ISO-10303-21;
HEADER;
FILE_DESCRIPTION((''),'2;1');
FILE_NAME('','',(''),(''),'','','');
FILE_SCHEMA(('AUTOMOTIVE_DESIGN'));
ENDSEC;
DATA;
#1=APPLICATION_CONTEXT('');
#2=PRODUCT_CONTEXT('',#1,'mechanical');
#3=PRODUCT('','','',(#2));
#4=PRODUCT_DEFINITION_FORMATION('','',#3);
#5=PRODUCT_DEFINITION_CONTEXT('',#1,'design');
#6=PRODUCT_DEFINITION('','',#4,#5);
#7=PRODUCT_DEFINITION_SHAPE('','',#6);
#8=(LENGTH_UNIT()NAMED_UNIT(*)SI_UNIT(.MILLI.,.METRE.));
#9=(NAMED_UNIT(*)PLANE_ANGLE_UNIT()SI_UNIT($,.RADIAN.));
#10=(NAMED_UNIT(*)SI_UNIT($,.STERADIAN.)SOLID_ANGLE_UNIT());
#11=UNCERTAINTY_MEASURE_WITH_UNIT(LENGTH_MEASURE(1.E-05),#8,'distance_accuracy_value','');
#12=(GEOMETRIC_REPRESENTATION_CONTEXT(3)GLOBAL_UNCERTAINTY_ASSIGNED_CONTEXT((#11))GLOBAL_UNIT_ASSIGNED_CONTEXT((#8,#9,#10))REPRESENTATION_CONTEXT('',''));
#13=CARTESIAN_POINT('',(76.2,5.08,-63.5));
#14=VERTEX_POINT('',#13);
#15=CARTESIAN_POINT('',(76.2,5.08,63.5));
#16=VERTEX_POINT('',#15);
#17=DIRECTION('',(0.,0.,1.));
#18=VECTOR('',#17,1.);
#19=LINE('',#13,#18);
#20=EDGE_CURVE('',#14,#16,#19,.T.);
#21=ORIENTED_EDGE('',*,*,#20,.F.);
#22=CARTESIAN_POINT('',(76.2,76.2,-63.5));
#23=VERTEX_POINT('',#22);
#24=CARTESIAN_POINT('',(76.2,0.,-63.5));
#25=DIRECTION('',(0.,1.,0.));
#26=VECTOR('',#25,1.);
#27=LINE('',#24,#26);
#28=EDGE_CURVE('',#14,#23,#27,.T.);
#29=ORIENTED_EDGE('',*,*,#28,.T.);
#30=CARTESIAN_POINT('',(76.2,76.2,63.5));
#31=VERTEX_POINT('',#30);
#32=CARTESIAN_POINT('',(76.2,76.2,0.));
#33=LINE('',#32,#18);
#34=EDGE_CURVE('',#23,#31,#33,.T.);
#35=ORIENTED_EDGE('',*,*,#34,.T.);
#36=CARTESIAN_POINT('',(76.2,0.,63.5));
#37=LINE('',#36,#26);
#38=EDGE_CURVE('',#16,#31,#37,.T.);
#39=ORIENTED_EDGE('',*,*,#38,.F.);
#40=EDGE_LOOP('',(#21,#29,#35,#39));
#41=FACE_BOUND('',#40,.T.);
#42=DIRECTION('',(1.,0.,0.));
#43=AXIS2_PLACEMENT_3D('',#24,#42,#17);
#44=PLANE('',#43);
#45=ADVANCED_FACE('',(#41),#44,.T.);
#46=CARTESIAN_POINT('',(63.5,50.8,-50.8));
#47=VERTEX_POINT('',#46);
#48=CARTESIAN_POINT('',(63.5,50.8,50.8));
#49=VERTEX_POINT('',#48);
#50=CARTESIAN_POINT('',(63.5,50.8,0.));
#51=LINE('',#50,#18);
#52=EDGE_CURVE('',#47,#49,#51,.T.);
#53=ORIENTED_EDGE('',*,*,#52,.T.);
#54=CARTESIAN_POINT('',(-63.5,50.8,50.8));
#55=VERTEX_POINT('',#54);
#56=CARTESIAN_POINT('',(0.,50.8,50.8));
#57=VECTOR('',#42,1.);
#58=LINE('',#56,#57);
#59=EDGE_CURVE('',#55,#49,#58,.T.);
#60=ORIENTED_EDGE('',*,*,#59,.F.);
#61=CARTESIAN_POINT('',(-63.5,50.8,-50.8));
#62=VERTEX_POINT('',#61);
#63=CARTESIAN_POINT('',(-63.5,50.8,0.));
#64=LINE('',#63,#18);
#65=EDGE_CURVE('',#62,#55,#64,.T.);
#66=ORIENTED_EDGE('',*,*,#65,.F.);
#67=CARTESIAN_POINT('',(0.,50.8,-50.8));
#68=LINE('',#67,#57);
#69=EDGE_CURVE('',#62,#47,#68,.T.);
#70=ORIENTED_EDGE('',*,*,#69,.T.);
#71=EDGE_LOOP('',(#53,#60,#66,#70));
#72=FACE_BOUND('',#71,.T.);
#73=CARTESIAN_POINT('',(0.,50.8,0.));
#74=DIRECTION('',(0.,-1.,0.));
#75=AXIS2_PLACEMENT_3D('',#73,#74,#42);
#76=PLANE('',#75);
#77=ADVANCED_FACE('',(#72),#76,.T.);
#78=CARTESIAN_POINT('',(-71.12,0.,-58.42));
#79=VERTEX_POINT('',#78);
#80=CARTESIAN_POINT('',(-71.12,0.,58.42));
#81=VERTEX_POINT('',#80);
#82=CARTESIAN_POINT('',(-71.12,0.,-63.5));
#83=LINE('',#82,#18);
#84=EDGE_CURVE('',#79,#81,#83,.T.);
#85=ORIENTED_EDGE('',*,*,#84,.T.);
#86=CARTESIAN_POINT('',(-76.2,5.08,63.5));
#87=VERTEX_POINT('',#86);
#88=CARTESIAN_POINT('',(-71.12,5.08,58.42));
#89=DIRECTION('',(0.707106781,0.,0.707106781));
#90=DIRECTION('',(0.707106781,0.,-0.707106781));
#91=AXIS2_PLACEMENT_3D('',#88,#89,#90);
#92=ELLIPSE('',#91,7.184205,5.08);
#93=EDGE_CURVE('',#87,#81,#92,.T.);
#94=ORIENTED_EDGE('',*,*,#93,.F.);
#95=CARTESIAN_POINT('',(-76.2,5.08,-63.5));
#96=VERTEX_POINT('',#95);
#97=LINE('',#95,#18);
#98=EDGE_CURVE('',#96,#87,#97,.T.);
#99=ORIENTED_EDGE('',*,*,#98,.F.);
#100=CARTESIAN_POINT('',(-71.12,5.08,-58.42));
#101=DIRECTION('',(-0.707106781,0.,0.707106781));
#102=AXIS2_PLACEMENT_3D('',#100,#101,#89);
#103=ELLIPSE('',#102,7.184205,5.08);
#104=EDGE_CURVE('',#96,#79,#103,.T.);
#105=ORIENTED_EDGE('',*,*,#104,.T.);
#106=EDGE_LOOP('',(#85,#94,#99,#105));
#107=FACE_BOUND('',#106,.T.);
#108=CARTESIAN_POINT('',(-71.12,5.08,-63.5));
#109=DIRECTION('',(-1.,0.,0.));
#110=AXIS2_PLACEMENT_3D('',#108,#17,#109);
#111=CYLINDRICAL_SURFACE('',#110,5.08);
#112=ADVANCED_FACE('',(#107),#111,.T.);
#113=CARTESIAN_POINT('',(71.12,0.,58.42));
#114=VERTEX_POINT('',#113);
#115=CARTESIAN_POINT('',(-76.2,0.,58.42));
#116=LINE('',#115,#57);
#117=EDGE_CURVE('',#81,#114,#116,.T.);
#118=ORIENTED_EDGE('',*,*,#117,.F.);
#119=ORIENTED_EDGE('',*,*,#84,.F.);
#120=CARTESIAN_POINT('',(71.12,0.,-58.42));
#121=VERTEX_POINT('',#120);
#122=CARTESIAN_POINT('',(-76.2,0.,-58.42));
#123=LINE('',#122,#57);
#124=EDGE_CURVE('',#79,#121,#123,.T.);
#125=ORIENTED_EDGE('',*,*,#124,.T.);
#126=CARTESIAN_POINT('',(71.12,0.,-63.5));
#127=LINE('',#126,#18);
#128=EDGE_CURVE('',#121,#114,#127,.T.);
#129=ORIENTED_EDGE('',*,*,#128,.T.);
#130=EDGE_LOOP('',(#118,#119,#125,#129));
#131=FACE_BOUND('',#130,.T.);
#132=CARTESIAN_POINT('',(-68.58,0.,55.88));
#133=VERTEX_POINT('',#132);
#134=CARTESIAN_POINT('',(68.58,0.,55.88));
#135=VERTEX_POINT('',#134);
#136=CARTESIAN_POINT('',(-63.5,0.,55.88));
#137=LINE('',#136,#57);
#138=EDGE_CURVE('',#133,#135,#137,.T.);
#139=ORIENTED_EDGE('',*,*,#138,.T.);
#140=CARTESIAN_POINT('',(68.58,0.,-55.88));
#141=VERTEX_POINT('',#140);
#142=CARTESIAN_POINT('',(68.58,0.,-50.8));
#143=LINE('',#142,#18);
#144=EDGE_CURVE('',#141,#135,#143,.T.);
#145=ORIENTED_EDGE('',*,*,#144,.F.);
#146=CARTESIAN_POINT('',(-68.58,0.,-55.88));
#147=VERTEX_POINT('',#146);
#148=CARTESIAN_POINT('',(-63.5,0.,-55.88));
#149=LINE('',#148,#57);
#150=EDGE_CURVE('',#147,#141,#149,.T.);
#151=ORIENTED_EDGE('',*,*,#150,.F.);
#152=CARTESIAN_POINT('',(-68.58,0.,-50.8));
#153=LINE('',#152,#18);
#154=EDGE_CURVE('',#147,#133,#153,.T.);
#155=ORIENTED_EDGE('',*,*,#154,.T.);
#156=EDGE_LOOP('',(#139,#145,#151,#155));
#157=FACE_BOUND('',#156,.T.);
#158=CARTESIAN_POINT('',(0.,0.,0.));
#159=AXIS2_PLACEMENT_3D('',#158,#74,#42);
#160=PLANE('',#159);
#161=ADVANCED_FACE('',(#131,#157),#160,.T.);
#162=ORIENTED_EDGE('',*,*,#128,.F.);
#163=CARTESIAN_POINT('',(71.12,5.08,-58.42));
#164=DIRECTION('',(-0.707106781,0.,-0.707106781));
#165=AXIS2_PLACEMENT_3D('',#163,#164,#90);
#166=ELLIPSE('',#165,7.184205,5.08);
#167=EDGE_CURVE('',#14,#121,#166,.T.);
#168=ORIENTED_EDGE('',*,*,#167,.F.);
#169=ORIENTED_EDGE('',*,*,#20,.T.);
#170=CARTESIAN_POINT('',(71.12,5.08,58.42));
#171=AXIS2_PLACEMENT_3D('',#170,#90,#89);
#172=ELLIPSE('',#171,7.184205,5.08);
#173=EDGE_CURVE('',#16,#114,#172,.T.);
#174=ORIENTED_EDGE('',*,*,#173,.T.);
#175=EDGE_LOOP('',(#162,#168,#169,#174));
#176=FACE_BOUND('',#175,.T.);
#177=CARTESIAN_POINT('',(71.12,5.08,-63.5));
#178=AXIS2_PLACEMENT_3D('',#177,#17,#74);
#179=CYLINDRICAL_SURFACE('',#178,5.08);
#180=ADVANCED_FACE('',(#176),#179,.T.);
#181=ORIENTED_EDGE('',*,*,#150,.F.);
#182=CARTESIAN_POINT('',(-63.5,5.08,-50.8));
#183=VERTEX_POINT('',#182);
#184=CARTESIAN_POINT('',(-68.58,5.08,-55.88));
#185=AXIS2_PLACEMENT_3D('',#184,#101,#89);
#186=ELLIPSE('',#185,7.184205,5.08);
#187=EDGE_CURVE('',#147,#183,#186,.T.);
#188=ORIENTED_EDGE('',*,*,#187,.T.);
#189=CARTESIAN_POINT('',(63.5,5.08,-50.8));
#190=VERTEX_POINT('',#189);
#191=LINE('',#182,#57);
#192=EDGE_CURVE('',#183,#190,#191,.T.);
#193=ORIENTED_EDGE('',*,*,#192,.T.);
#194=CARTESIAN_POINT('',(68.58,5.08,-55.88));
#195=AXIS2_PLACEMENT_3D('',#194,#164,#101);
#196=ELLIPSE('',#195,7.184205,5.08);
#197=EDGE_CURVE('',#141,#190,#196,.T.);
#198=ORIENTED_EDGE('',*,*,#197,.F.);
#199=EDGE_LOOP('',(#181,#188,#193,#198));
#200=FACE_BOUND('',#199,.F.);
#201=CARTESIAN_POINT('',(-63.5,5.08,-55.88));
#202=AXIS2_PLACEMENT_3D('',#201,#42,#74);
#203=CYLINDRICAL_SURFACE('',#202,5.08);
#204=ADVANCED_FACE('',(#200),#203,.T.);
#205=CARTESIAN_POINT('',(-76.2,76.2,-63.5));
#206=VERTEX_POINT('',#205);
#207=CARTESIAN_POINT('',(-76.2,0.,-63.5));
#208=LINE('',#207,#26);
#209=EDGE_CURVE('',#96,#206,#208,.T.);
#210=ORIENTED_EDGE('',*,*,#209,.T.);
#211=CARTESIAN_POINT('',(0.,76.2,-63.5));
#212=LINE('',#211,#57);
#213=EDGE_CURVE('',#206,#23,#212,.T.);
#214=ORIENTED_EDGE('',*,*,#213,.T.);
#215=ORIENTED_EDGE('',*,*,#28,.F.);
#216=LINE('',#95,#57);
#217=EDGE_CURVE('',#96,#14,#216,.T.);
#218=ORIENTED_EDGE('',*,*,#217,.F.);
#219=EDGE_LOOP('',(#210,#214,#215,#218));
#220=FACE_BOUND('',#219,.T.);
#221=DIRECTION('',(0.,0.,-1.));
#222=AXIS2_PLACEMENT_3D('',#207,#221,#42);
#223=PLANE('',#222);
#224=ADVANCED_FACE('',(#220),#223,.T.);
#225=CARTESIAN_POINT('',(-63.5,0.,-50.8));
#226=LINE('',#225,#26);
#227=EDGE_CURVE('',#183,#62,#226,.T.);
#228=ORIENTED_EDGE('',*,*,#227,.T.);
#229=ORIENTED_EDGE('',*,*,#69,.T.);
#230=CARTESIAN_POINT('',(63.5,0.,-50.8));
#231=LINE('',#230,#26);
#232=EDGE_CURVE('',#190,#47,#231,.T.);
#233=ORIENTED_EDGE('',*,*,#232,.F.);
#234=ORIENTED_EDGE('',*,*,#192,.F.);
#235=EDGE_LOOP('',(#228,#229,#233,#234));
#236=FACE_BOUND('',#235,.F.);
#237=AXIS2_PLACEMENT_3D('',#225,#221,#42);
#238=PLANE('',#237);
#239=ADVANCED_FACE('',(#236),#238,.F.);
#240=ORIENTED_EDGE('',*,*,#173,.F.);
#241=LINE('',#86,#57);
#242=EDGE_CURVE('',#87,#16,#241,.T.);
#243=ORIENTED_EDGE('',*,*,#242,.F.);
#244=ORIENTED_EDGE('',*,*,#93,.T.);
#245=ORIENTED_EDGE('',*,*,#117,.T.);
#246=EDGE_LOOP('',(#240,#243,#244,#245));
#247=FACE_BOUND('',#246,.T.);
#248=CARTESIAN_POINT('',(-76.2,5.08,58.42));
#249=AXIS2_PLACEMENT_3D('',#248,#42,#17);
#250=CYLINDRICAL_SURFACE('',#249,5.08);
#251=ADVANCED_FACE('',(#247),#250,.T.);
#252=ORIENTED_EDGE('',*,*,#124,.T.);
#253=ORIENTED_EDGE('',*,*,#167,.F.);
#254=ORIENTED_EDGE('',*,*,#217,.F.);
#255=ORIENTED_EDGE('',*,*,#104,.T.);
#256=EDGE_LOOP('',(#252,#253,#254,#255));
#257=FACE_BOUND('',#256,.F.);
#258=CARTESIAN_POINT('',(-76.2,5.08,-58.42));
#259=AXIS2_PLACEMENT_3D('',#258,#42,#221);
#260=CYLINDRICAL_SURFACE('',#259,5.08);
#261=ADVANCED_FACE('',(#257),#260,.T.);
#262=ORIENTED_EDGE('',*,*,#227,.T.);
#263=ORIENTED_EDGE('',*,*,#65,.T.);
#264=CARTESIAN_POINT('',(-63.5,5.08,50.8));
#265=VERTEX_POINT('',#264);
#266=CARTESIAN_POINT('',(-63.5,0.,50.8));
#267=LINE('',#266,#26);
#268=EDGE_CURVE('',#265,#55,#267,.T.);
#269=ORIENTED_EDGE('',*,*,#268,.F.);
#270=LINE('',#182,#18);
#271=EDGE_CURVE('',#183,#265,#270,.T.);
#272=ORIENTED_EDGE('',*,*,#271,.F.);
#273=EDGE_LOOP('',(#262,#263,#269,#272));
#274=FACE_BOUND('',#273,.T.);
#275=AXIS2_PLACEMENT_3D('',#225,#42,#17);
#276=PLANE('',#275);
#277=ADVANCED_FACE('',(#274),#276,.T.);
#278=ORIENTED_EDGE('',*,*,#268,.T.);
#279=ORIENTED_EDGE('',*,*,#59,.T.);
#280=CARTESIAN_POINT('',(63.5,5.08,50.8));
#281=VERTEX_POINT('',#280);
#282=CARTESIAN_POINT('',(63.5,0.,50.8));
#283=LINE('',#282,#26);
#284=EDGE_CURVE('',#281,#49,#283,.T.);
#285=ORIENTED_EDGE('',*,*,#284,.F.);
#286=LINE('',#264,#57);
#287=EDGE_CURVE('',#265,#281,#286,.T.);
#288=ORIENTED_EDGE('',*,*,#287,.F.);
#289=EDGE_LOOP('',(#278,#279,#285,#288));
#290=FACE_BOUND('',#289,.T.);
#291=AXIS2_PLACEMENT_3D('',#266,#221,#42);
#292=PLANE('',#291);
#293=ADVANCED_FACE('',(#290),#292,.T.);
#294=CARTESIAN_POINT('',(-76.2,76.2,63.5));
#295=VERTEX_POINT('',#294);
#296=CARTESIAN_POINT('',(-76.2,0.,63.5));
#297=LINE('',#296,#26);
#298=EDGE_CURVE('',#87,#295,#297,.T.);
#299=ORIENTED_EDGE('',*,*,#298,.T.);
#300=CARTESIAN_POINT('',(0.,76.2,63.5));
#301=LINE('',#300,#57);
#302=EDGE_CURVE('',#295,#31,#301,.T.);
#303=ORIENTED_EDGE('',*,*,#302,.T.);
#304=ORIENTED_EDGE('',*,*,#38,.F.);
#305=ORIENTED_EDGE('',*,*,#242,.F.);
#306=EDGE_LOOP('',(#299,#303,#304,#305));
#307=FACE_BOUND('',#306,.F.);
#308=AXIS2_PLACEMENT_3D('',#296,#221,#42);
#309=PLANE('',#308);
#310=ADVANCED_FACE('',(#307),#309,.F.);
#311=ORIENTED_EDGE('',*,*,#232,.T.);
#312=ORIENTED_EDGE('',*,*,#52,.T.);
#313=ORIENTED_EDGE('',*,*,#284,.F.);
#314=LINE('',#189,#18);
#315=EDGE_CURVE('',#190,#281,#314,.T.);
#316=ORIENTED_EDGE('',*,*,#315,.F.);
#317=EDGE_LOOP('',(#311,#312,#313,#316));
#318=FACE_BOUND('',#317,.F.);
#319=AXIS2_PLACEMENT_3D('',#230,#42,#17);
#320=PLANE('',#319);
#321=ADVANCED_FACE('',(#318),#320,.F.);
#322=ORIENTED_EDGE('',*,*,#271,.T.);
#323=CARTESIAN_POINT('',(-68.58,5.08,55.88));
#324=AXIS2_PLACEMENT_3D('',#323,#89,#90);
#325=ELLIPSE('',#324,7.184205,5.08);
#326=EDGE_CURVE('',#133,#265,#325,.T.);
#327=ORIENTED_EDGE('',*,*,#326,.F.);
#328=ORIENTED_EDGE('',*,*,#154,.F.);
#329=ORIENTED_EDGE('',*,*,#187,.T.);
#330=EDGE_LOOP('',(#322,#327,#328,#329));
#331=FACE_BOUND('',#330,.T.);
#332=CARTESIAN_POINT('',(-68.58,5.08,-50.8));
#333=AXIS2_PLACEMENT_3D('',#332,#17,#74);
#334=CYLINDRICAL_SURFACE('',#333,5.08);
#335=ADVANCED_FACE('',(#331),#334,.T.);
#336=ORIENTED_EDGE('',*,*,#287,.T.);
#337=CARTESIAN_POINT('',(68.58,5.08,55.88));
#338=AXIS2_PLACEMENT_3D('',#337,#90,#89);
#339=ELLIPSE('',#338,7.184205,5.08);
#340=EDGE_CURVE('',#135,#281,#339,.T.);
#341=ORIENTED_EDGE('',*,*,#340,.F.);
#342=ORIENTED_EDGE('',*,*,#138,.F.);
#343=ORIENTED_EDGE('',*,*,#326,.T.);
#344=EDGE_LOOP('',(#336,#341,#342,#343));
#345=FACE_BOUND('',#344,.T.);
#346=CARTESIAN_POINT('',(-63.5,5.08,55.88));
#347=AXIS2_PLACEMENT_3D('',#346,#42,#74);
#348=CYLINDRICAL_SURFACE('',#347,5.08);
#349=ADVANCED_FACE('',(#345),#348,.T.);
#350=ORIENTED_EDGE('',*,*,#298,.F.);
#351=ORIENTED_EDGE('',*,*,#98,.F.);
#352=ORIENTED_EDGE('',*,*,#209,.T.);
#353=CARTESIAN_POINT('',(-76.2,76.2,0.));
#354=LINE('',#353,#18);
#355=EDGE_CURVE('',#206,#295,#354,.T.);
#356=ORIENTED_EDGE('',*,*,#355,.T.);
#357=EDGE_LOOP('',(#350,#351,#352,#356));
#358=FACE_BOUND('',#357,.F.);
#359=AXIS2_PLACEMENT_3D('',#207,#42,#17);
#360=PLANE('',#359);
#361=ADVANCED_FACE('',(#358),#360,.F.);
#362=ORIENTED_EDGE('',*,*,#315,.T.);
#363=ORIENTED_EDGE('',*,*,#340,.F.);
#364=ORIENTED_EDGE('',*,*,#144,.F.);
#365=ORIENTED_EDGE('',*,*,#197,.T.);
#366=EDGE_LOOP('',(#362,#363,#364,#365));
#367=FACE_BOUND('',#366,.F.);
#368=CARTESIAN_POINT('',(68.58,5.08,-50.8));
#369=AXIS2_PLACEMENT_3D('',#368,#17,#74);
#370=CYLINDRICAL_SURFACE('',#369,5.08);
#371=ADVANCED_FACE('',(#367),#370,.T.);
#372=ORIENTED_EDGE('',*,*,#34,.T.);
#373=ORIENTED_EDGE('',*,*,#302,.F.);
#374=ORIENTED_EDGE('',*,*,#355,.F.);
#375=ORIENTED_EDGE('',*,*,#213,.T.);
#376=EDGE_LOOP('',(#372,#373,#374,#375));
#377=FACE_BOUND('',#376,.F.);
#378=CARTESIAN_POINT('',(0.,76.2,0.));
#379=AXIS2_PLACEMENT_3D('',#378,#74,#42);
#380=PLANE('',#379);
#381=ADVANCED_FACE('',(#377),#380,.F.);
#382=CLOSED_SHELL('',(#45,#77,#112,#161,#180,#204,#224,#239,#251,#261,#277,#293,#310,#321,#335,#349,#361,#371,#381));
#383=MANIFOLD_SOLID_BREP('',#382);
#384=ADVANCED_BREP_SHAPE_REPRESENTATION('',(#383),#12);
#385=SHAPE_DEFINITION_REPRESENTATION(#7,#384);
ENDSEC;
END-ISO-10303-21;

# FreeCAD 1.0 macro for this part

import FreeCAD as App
import Part
import Sketcher
from FreeCAD import Vector
Q = App.Units.Quantity


def edges_at(feature, points):
    """Names of the edges that pass closest to the given points."""
    edges = feature.Shape.Edges
    near = lambda p: min(range(len(edges)), key=lambda i: edges[i].distToShape(Part.Vertex(*p))[0])
    return sorted({f"Edge{near(p) + 1}" for p in points})

doc = App.newDocument("Part")
body = doc.addObject("PartDesign::Body", "Body")

# Sketch on XZ plane
sketch1 = body.newObject("Sketcher::SketchObject", "Sketch")
sketch1.AttachmentSupport = (doc.getObject("XZ_Plane"), [""])
sketch1.MapMode = "FlatFace"
sketch1.addGeometry(Part.LineSegment(Vector(-76.2, 63.5, 0), Vector(-76.2, -63.5, 0)), False)
sketch1.addGeometry(Part.LineSegment(Vector(-76.2, -63.5, 0), Vector(76.2, -63.5, 0)), False)
sketch1.addGeometry(Part.LineSegment(Vector(76.2, -63.5, 0), Vector(76.2, 63.5, 0)), False)
sketch1.addGeometry(Part.LineSegment(Vector(76.2, 63.5, 0), Vector(-76.2, 63.5, 0)), False)
sketch1.addConstraint(Sketcher.Constraint("Coincident", 0, 2, 1, 1))
sketch1.addConstraint(Sketcher.Constraint("Coincident", 1, 2, 2, 1))
sketch1.addConstraint(Sketcher.Constraint("Coincident", 2, 2, 3, 1))
sketch1.addConstraint(Sketcher.Constraint("Coincident", 3, 2, 0, 1))
sketch1.addConstraint(Sketcher.Constraint("Vertical", 0))
sketch1.addConstraint(Sketcher.Constraint("Horizontal", 1))
sketch1.addConstraint(Sketcher.Constraint("Vertical", 2))
sketch1.addConstraint(Sketcher.Constraint("Horizontal", 3))
sketch1.addConstraint(Sketcher.Constraint("Symmetric", 0, 2, 2, 2, -1, 1))
sketch1.addConstraint(Sketcher.Constraint("DistanceX", 1, 1, 1, 2, Q("6 in")))
sketch1.addConstraint(Sketcher.Constraint("DistanceY", 0, 2, 0, 1, Q("5 in")))
pad1 = body.newObject("PartDesign::Pad", "Pad")
pad1.Profile = sketch1
pad1.Length = Q("3 in")
pad1.Reversed = True

# Sketch on XZ plane
sketch2 = body.newObject("Sketcher::SketchObject", "Sketch001")
sketch2.AttachmentSupport = (doc.getObject("XZ_Plane"), [""])
sketch2.MapMode = "FlatFace"
sketch2.addGeometry(Part.LineSegment(Vector(-63.5, 50.8, 0), Vector(-63.5, -50.8, 0)), False)
sketch2.addGeometry(Part.LineSegment(Vector(-63.5, -50.8, 0), Vector(63.5, -50.8, 0)), False)
sketch2.addGeometry(Part.LineSegment(Vector(63.5, -50.8, 0), Vector(63.5, 50.8, 0)), False)
sketch2.addGeometry(Part.LineSegment(Vector(63.5, 50.8, 0), Vector(-63.5, 50.8, 0)), False)
sketch2.addConstraint(Sketcher.Constraint("Coincident", 0, 2, 1, 1))
sketch2.addConstraint(Sketcher.Constraint("Coincident", 1, 2, 2, 1))
sketch2.addConstraint(Sketcher.Constraint("Coincident", 2, 2, 3, 1))
sketch2.addConstraint(Sketcher.Constraint("Coincident", 3, 2, 0, 1))
sketch2.addConstraint(Sketcher.Constraint("Vertical", 0))
sketch2.addConstraint(Sketcher.Constraint("Horizontal", 1))
sketch2.addConstraint(Sketcher.Constraint("Vertical", 2))
sketch2.addConstraint(Sketcher.Constraint("Horizontal", 3))
sketch2.addConstraint(Sketcher.Constraint("Symmetric", 0, 2, 2, 2, -1, 1))
sketch2.addConstraint(Sketcher.Constraint("DistanceX", 1, 1, 1, 2, Q("5 in")))
sketch2.addConstraint(Sketcher.Constraint("DistanceY", 0, 2, 0, 1, Q("4 in")))
pocket1 = body.newObject("PartDesign::Pocket", "Pocket")
pocket1.Profile = sketch2
pocket1.Length = Q("2 in")
doc.recompute()

fillet = body.newObject("PartDesign::Fillet", "Fillet")
fillet.Base = (pocket1, edges_at(pocket1, [
    (0, 0, 50.8),
    (0, 0, 63.5),
    (63.5, 0, 0),
    (0, 0, -50.8),
    (-63.5, 0, 0),
    (-76.2, 0, 0),
    (0, 0, -63.5),
    (76.2, 0, 0),
]))
fillet.Radius = Q("0.2 in")

doc.recompute()
